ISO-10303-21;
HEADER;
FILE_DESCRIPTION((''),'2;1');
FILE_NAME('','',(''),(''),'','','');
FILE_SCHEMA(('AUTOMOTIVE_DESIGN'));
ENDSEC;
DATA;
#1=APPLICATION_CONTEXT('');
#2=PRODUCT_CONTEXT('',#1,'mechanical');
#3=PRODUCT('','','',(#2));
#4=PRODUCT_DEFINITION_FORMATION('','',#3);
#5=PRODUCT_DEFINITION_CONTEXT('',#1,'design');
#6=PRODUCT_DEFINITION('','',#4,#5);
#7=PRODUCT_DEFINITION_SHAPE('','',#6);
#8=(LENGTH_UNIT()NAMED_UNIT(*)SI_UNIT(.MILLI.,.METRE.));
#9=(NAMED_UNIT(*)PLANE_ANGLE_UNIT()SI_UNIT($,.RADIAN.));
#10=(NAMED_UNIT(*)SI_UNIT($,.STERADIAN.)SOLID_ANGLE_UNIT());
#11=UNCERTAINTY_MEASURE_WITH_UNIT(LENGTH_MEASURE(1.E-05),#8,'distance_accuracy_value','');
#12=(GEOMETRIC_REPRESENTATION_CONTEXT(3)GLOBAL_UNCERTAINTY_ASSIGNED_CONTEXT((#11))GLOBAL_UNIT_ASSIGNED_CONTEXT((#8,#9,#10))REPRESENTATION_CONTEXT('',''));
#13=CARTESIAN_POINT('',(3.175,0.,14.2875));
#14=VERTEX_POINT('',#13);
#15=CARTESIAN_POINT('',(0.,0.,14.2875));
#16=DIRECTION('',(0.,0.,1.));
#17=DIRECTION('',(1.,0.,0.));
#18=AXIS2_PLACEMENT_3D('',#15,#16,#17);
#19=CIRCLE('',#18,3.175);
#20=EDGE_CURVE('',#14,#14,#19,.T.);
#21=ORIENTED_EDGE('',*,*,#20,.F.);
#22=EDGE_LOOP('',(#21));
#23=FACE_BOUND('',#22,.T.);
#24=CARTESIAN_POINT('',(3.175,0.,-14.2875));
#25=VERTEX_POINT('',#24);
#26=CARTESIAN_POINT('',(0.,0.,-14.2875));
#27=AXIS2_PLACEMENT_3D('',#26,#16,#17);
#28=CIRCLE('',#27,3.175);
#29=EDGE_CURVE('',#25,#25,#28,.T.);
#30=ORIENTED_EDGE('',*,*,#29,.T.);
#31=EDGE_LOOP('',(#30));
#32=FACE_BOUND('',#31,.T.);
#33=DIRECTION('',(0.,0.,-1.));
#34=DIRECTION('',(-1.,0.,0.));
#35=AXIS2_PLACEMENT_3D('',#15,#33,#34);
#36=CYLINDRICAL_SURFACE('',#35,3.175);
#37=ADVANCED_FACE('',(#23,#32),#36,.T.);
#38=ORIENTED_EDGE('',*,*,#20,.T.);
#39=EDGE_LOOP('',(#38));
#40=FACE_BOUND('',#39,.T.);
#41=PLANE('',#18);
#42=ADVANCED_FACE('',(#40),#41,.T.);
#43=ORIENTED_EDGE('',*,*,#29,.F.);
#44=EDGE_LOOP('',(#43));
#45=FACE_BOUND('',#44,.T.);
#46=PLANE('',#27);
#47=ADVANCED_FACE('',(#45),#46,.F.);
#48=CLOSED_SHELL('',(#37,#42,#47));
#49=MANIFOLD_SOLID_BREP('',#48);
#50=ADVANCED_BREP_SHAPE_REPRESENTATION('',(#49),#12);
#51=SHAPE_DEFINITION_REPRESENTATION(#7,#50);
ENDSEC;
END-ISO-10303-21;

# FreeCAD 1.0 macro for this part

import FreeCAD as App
import Part
import Sketcher
Q = App.Units.Quantity

doc = App.newDocument("Part")
body = doc.addObject("PartDesign::Body", "Body")

# Sketch on XY plane
sketch1 = doc.addObject("Sketcher::SketchObject", "Sketch")
body.addObject(sketch1)
sketch1.AttachmentSupport = (doc.XY_Plane, [""])
sketch1.MapMode = "FlatFace"
sketch1.addGeometry(Part.Circle(App.Vector(0, 0, 0), App.Vector(0, 0, 1), 3.175), False)
sketch1.addConstraint([
    Sketcher.Constraint("Coincident", 0, 3, -1, 1),
    Sketcher.Constraint("Diameter", 0, Q("0.25 in")),
])
pad1 = doc.addObject("PartDesign::Pad", "Pad")
body.addObject(pad1)
pad1.Profile = sketch1
pad1.Length = Q("1.125 in")
pad1.Midplane = True

doc.recompute()
